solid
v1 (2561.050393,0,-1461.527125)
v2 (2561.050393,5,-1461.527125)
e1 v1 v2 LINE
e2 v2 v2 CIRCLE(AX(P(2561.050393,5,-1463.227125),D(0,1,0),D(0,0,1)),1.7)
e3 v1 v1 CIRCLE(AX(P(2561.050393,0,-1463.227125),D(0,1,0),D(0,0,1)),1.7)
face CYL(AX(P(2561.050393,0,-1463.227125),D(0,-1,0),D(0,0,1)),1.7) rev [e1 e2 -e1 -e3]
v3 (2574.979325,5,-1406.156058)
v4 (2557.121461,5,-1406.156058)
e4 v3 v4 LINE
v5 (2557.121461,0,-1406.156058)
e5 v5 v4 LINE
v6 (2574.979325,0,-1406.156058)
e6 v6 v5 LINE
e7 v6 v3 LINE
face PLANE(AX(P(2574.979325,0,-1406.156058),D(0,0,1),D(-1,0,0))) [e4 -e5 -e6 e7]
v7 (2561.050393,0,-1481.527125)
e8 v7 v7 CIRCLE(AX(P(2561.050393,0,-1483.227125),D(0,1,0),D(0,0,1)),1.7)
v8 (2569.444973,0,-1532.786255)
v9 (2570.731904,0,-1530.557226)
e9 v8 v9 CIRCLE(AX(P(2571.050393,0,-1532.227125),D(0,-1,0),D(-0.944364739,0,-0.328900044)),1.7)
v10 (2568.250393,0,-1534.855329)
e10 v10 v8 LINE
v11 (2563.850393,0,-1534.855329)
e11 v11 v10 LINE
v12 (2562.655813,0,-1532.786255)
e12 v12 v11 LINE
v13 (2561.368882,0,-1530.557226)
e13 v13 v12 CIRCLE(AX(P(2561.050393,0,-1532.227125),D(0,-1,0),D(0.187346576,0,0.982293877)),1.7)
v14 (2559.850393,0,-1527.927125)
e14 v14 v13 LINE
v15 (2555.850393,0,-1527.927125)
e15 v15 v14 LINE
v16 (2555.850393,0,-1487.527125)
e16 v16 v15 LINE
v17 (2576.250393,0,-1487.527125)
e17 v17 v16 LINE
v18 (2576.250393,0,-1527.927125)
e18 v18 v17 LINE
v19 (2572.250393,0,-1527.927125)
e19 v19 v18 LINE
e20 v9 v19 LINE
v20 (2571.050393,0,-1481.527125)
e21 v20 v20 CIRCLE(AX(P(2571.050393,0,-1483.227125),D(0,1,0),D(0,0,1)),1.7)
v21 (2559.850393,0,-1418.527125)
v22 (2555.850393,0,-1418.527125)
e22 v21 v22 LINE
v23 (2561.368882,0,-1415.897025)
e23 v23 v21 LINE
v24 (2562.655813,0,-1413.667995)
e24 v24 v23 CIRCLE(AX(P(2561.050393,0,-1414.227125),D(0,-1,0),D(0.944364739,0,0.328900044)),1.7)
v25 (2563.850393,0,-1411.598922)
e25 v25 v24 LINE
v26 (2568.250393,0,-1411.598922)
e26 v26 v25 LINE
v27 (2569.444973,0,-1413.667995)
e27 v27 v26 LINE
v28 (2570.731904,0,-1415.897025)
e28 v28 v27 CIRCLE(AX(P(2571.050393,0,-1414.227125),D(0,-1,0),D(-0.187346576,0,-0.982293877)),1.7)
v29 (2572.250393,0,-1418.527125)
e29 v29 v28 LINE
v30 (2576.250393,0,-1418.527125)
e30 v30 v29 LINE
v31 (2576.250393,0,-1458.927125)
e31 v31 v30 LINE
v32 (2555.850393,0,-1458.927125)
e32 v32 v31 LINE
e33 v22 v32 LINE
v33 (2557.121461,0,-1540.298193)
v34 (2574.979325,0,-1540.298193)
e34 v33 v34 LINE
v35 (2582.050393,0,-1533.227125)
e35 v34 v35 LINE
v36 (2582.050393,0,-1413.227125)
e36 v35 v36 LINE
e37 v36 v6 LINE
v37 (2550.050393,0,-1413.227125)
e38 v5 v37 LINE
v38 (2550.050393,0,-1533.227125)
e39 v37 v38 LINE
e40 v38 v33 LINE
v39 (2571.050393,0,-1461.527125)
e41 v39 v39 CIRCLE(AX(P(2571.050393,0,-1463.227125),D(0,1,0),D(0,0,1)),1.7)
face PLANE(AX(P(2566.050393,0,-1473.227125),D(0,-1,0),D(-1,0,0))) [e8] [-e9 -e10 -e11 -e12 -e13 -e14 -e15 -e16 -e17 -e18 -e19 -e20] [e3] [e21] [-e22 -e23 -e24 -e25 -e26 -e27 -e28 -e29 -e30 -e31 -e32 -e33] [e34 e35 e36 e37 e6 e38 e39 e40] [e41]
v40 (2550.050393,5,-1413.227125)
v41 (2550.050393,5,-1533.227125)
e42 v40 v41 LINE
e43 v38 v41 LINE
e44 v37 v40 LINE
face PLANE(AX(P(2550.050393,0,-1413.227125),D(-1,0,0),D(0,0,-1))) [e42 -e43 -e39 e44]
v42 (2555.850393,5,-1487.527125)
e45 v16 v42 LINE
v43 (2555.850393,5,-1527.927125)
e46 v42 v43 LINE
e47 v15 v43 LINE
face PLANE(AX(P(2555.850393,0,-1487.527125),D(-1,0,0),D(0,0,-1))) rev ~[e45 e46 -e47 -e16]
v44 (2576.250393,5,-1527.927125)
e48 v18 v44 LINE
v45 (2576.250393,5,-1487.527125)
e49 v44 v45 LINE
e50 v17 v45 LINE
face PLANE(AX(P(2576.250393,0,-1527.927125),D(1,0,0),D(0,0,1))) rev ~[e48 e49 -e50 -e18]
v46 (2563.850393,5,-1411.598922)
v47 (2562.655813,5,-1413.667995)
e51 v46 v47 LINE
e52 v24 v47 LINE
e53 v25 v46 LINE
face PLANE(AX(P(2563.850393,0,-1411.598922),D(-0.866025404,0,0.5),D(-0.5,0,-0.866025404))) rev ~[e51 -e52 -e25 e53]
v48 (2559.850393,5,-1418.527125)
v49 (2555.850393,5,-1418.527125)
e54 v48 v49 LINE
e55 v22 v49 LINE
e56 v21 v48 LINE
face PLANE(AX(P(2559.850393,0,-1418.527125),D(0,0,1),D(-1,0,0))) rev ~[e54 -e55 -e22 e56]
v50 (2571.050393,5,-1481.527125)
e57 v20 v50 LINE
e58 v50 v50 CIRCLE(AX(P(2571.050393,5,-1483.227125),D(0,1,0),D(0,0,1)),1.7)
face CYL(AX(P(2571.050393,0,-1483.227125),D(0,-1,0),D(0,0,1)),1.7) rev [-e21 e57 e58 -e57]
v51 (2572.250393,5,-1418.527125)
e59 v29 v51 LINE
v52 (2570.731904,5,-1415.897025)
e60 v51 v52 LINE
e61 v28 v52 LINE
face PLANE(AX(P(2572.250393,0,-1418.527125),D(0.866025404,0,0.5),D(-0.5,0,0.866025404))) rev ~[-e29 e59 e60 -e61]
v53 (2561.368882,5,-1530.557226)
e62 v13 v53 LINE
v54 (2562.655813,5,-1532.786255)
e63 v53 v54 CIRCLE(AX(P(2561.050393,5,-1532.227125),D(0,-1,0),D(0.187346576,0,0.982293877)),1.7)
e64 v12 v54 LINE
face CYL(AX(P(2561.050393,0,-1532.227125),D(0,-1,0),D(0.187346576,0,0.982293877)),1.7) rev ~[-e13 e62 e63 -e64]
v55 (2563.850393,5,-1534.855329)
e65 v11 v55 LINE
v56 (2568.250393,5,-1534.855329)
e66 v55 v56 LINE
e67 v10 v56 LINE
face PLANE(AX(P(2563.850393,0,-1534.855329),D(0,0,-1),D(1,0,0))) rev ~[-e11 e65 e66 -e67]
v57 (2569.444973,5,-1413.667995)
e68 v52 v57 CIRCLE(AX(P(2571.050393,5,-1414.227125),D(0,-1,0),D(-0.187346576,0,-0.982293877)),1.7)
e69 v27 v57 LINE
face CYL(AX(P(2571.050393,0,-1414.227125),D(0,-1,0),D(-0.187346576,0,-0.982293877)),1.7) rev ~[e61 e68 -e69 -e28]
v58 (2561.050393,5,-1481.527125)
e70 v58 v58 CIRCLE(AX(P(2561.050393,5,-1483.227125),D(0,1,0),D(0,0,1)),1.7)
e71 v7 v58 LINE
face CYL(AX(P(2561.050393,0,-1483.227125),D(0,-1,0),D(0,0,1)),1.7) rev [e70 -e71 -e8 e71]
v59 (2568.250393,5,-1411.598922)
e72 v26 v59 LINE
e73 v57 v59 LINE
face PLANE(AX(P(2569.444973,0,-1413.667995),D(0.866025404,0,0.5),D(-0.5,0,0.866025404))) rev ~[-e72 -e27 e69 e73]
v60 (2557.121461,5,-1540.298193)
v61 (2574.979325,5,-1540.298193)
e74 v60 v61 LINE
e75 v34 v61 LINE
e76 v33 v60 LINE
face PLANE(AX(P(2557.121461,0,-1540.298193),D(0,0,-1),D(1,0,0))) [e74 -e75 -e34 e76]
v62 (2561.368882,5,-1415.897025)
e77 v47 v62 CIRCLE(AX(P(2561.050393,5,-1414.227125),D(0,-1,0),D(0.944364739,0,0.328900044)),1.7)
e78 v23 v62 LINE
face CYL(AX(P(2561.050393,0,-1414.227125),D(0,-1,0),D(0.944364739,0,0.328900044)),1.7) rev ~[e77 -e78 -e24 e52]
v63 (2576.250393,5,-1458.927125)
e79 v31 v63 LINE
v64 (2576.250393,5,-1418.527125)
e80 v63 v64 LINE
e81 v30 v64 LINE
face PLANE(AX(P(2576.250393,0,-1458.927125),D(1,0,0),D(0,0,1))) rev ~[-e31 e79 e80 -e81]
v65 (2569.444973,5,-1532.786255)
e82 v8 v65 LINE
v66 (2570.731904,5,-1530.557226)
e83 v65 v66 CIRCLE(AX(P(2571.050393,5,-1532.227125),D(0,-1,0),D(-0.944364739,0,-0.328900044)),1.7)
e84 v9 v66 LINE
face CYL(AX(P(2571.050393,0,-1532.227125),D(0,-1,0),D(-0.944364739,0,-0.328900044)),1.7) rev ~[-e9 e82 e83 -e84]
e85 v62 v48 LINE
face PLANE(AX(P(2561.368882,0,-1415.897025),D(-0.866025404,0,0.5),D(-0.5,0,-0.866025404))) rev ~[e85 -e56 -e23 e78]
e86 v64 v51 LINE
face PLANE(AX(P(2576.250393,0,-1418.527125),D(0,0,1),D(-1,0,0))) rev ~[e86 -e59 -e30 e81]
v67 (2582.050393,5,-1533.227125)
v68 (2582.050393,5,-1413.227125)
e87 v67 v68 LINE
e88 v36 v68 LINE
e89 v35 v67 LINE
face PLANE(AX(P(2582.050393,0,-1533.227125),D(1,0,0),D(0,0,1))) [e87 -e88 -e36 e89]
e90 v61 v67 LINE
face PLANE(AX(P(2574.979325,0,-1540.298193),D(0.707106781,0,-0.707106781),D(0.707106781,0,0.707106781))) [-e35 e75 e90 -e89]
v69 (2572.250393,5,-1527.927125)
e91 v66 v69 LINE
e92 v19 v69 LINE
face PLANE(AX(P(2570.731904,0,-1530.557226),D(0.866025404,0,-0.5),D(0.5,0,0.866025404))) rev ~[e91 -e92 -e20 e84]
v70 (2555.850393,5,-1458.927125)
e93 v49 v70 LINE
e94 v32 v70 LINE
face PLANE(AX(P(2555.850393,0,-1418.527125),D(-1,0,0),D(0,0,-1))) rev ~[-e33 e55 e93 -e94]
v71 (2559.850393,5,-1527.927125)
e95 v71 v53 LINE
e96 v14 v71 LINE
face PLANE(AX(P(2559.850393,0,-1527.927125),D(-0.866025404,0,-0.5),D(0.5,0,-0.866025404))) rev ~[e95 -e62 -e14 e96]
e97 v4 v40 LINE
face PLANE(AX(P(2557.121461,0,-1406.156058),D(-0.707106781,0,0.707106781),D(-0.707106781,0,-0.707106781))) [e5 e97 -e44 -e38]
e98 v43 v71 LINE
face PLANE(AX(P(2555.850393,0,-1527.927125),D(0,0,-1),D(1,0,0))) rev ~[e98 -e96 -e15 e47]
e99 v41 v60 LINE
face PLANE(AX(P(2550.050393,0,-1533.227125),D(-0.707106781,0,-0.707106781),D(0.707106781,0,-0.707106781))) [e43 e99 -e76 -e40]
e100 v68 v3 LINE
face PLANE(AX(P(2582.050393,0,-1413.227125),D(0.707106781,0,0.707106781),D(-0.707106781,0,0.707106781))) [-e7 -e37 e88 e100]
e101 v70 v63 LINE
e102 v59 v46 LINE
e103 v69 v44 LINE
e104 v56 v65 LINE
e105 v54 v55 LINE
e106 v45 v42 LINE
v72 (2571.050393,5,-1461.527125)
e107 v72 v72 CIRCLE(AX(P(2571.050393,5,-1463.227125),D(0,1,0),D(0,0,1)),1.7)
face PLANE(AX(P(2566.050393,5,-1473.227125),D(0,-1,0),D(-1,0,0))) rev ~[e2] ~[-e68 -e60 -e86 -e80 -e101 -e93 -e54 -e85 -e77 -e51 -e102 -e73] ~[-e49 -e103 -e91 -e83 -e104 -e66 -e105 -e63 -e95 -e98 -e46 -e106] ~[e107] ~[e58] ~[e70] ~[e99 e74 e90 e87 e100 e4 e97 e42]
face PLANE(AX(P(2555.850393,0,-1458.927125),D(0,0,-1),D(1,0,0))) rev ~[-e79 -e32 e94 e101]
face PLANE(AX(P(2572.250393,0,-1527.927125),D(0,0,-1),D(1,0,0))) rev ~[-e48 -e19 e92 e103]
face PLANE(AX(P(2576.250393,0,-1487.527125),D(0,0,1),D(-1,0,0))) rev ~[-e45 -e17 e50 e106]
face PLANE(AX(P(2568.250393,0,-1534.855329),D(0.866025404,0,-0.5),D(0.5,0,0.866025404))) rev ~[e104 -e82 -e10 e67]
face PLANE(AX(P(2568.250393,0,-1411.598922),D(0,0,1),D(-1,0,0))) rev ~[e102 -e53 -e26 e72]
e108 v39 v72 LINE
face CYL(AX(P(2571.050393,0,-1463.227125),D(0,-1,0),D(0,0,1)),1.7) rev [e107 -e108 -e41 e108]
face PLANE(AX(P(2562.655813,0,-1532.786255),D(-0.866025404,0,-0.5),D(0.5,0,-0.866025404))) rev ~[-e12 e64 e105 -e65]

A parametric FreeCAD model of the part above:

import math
import FreeCAD as App
import Part
import Sketcher

V = App.Vector
Q = App.Units.Quantity


def add_polygon(sketch, points):
    """Adds a closed chain of lines whose ends are joined by coincident constraints."""
    first, n = sketch.GeometryCount, len(points)
    for a, b in zip(points, points[1:] + points[:1]):
        sketch.addGeometry(Part.LineSegment(App.Vector(*a, 0), App.Vector(*b, 0)), False)
    for i in range(n):
        sketch.addConstraint(Sketcher.Constraint("Coincident", first + i, 2, first + (i + 1) % n, 1))

doc = App.newDocument("Part")
body = doc.addObject("PartDesign::Body", "Body")

# Sketch on XZ plane
sketch1 = doc.addObject("Sketcher::SketchObject", "Sketch")
body.addObject(sketch1)
sketch1.AttachmentSupport = (doc.XZ_Plane, [""])
sketch1.MapMode = "FlatFace"
add_polygon(sketch1, [(2557.1, -1540.3), (2550.1, -1533.2), (2550.1, -1413.2), (2557.1, -1406.2), (2575, -1406.2), (2582.1, -1413.2), (2582.1, -1533.2), (2575, -1540.3)])  # lines 0-7
sketch1.addGeometry(Part.Circle(V(2571.1, -1463.2, 0), V(0, 0, 1), 1.7), False)  # 8
sketch1.addGeometry(Part.LineSegment(V(2555.9, -1458.9, 0), V(2576.3, -1458.9, 0)), False)  # 9
sketch1.addGeometry(Part.LineSegment(V(2576.3, -1458.9, 0), V(2576.3, -1418.5, 0)), False)  # 10
sketch1.addGeometry(Part.LineSegment(V(2576.3, -1418.5, 0), V(2572.3, -1418.5, 0)), False)  # 11
sketch1.addGeometry(Part.LineSegment(V(2572.3, -1418.5, 0), V(2570.7, -1415.9, 0)), False)  # 12
sketch1.addGeometry(Part.ArcOfCircle(Part.Circle(V(2571.1, -1414.2, 0), V(0, 0, 1), 1.7), math.radians(-101), math.radians(161)), False)  # 13
sketch1.addGeometry(Part.LineSegment(V(2569.4, -1413.7, 0), V(2568.3, -1411.6, 0)), False)  # 14
sketch1.addGeometry(Part.LineSegment(V(2568.3, -1411.6, 0), V(2563.9, -1411.6, 0)), False)  # 15
sketch1.addGeometry(Part.LineSegment(V(2563.9, -1411.6, 0), V(2562.7, -1413.7, 0)), False)  # 16
sketch1.addGeometry(Part.ArcOfCircle(Part.Circle(V(2561.1, -1414.2, 0), V(0, 0, 1), 1.7), math.radians(19), math.radians(281)), False)  # 17
sketch1.addGeometry(Part.LineSegment(V(2561.4, -1415.9, 0), V(2559.9, -1418.5, 0)), False)  # 18
sketch1.addGeometry(Part.LineSegment(V(2559.9, -1418.5, 0), V(2555.9, -1418.5, 0)), False)  # 19
sketch1.addGeometry(Part.LineSegment(V(2555.9, -1418.5, 0), V(2555.9, -1458.9, 0)), False)  # 20
sketch1.addGeometry(Part.Circle(V(2561.1, -1463.2, 0), V(0, 0, 1), 1.7), False)  # 21
sketch1.addGeometry(Part.Circle(V(2571.1, -1483.2, 0), V(0, 0, 1), 1.7), False)  # 22
sketch1.addGeometry(Part.Circle(V(2561.1, -1483.2, 0), V(0, 0, 1), 1.7), False)  # 23
sketch1.addGeometry(Part.LineSegment(V(2576.3, -1487.5, 0), V(2555.9, -1487.5, 0)), False)  # 24
sketch1.addGeometry(Part.LineSegment(V(2555.9, -1487.5, 0), V(2555.9, -1527.9, 0)), False)  # 25
sketch1.addGeometry(Part.LineSegment(V(2555.9, -1527.9, 0), V(2559.9, -1527.9, 0)), False)  # 26
sketch1.addGeometry(Part.LineSegment(V(2559.9, -1527.9, 0), V(2561.4, -1530.6, 0)), False)  # 27
sketch1.addGeometry(Part.ArcOfCircle(Part.Circle(V(2561.1, -1532.2, 0), V(0, 0, 1), 1.7), math.radians(79), math.radians(341)), False)  # 28
sketch1.addGeometry(Part.LineSegment(V(2562.7, -1532.8, 0), V(2563.9, -1534.9, 0)), False)  # 29
sketch1.addGeometry(Part.LineSegment(V(2563.9, -1534.9, 0), V(2568.3, -1534.9, 0)), False)  # 30
sketch1.addGeometry(Part.LineSegment(V(2568.3, -1534.9, 0), V(2569.4, -1532.8, 0)), False)  # 31
sketch1.addGeometry(Part.ArcOfCircle(Part.Circle(V(2571.1, -1532.2, 0), V(0, 0, 1), 1.7), math.radians(-161), math.radians(101)), False)  # 32
sketch1.addGeometry(Part.LineSegment(V(2570.7, -1530.6, 0), V(2572.3, -1527.9, 0)), False)  # 33
sketch1.addGeometry(Part.LineSegment(V(2572.3, -1527.9, 0), V(2576.3, -1527.9, 0)), False)  # 34
sketch1.addGeometry(Part.LineSegment(V(2576.3, -1527.9, 0), V(2576.3, -1487.5, 0)), False)  # 35
sketch1.addConstraint([
    Sketcher.Constraint("Coincident", 9, 2, 10, 1),
    Sketcher.Constraint("Coincident", 10, 2, 11, 1),
    Sketcher.Constraint("Coincident", 11, 2, 12, 1),
    Sketcher.Constraint("Coincident", 12, 2, 13, 1),
    Sketcher.Constraint("Coincident", 13, 2, 14, 1),
    Sketcher.Constraint("Coincident", 14, 2, 15, 1),
    Sketcher.Constraint("Coincident", 15, 2, 16, 1),
    Sketcher.Constraint("Coincident", 16, 2, 17, 1),
    Sketcher.Constraint("Coincident", 17, 2, 18, 1),
    Sketcher.Constraint("Coincident", 18, 2, 19, 1),
    Sketcher.Constraint("Coincident", 19, 2, 20, 1),
    Sketcher.Constraint("Coincident", 20, 2, 9, 1),
    Sketcher.Constraint("Coincident", 24, 2, 25, 1),
    Sketcher.Constraint("Coincident", 25, 2, 26, 1),
    Sketcher.Constraint("Coincident", 26, 2, 27, 1),
    Sketcher.Constraint("Coincident", 27, 2, 28, 1),
    Sketcher.Constraint("Coincident", 28, 2, 29, 1),
    Sketcher.Constraint("Coincident", 29, 2, 30, 1),
    Sketcher.Constraint("Coincident", 30, 2, 31, 1),
    Sketcher.Constraint("Coincident", 31, 2, 32, 1),
    Sketcher.Constraint("Coincident", 32, 2, 33, 1),
    Sketcher.Constraint("Coincident", 33, 2, 34, 1),
    Sketcher.Constraint("Coincident", 34, 2, 35, 1),
    Sketcher.Constraint("Coincident", 35, 2, 24, 1),
    Sketcher.Constraint("Vertical", 1),
    Sketcher.Constraint("Horizontal", 3),
    Sketcher.Constraint("Vertical", 5),
    Sketcher.Constraint("Horizontal", 7),
    Sketcher.Constraint("Horizontal", 9),
    Sketcher.Constraint("Vertical", 10),
    Sketcher.Constraint("Horizontal", 11),
    Sketcher.Constraint("Horizontal", 15),
    Sketcher.Constraint("Horizontal", 19),
    Sketcher.Constraint("Vertical", 20),
    Sketcher.Constraint("Horizontal", 24),
    Sketcher.Constraint("Vertical", 25),
    Sketcher.Constraint("Horizontal", 26),
    Sketcher.Constraint("Horizontal", 30),
    Sketcher.Constraint("Horizontal", 34),
    Sketcher.Constraint("Vertical", 35),
    Sketcher.Constraint("Equal", 8, 13),
    Sketcher.Constraint("Equal", 13, 17),
    Sketcher.Constraint("Equal", 17, 21),
    Sketcher.Constraint("Equal", 21, 22),
    Sketcher.Constraint("Equal", 22, 23),
    Sketcher.Constraint("Equal", 23, 28),
    Sketcher.Constraint("Equal", 28, 32),
    Sketcher.Constraint("Perpendicular", 0, 2),
    Sketcher.Constraint("Perpendicular", 2, 4),
    Sketcher.Constraint("Perpendicular", 4, 6),
    Sketcher.Constraint("Parallel", 12, 14),
    Sketcher.Constraint("Parallel", 16, 18),
    Sketcher.Constraint("Parallel", 14, 27),
    Sketcher.Constraint("Parallel", 27, 29),
    Sketcher.Constraint("Parallel", 18, 31),
    Sketcher.Constraint("Parallel", 31, 33),
    Sketcher.Constraint("Horizontal", 13, 3, 17, 3),
    Sketcher.Constraint("Horizontal", 8, 3, 21, 3),
    Sketcher.Constraint("Horizontal", 22, 3, 23, 3),
    Sketcher.Constraint("Horizontal", 28, 3, 32, 3),
    Sketcher.Constraint("Horizontal", 1, 2, 4, 2),
    Sketcher.Constraint("Horizontal", 0, 2, 5, 2),
    Sketcher.Constraint("Horizontal", 13, 2, 16, 2),
    Sketcher.Constraint("Horizontal", 12, 2, 17, 2),
    Sketcher.Constraint("Horizontal", 11, 2, 18, 2),
    Sketcher.Constraint("Horizontal", 28, 2, 31, 2),
    Sketcher.Constraint("Horizontal", 27, 2, 32, 2),
    Sketcher.Constraint("Horizontal", 26, 2, 33, 2),
    Sketcher.Constraint("Vertical", 8, 3, 13, 3),
    Sketcher.Constraint("Vertical", 17, 3, 21, 3),
    Sketcher.Constraint("Vertical", 13, 3, 22, 3),
    Sketcher.Constraint("Vertical", 21, 3, 23, 3),
    Sketcher.Constraint("Vertical", 23, 3, 28, 3),
    Sketcher.Constraint("Vertical", 22, 3, 32, 3),
    Sketcher.Constraint("Vertical", 3, 2, 6, 2),
    Sketcher.Constraint("Vertical", 2, 2, 7, 2),
    Sketcher.Constraint("Vertical", 20, 2, 24, 2),
    Sketcher.Constraint("Vertical", 18, 2, 26, 2),
    Sketcher.Constraint("Vertical", 17, 2, 27, 2),
    Sketcher.Constraint("Vertical", 16, 2, 28, 2),
    Sketcher.Constraint("Vertical", 15, 2, 29, 2),
    Sketcher.Constraint("Vertical", 14, 2, 30, 2),
    Sketcher.Constraint("Vertical", 10, 2, 34, 2),
    Sketcher.Constraint("Equal", 11, 19),
    Sketcher.Constraint("Equal", 20, 25),
    Sketcher.Constraint("Diameter", 8, 3.4),
    Sketcher.Constraint("DistanceX", 11, 2, 11, 1, 4.0),
    Sketcher.Constraint("DistanceY", 1, 1, 1, 2, 120.0),
    Sketcher.Constraint("Angle", 12, Q("120 deg")),
    Sketcher.Constraint("Distance", 0, 10.0),
    Sketcher.Constraint("DistanceX", 9, 1, 9, 2, 20.4),
    Sketcher.Constraint("DistanceX", 15, 2, 15, 1, 4.4),
    Sketcher.Constraint("DistanceY", 10, 1, 10, 2, 40.4),
    Sketcher.Constraint("DistanceY", 8, 3, 13, 3, 49.0),
    Sketcher.Constraint("DistanceX", 17, 3, 13, 3, 10.0),
    Sketcher.Constraint("DistanceY", 22, 3, 8, 3, 20.0),
    Sketcher.Constraint("DistanceY", 28, 3, 23, 3, 49.0),
    Sketcher.Constraint("DistanceX", 0, 2, 28, 3, 11.0),
    Sketcher.Constraint("DistanceY", 0, 2, 28, 3, 1.0),
    Sketcher.Constraint("DistanceX", 13, 3, 4, 2, 11.0),
    Sketcher.Constraint("DistanceY", 8, 3, 9, 2, 4.3),
    Sketcher.Constraint("Distance", 14, 2.38916),
    Sketcher.Constraint("DistanceX", -1, 1, 2, 2, 2557.121461),
    Sketcher.Constraint("DistanceY", 29, 2, -1, 1, 1534.855329),
])
pad1 = doc.addObject("PartDesign::Pad", "Pad")
body.addObject(pad1)
pad1.Profile = sketch1
pad1.Length = 5
pad1.Reversed = True

doc.recompute()
